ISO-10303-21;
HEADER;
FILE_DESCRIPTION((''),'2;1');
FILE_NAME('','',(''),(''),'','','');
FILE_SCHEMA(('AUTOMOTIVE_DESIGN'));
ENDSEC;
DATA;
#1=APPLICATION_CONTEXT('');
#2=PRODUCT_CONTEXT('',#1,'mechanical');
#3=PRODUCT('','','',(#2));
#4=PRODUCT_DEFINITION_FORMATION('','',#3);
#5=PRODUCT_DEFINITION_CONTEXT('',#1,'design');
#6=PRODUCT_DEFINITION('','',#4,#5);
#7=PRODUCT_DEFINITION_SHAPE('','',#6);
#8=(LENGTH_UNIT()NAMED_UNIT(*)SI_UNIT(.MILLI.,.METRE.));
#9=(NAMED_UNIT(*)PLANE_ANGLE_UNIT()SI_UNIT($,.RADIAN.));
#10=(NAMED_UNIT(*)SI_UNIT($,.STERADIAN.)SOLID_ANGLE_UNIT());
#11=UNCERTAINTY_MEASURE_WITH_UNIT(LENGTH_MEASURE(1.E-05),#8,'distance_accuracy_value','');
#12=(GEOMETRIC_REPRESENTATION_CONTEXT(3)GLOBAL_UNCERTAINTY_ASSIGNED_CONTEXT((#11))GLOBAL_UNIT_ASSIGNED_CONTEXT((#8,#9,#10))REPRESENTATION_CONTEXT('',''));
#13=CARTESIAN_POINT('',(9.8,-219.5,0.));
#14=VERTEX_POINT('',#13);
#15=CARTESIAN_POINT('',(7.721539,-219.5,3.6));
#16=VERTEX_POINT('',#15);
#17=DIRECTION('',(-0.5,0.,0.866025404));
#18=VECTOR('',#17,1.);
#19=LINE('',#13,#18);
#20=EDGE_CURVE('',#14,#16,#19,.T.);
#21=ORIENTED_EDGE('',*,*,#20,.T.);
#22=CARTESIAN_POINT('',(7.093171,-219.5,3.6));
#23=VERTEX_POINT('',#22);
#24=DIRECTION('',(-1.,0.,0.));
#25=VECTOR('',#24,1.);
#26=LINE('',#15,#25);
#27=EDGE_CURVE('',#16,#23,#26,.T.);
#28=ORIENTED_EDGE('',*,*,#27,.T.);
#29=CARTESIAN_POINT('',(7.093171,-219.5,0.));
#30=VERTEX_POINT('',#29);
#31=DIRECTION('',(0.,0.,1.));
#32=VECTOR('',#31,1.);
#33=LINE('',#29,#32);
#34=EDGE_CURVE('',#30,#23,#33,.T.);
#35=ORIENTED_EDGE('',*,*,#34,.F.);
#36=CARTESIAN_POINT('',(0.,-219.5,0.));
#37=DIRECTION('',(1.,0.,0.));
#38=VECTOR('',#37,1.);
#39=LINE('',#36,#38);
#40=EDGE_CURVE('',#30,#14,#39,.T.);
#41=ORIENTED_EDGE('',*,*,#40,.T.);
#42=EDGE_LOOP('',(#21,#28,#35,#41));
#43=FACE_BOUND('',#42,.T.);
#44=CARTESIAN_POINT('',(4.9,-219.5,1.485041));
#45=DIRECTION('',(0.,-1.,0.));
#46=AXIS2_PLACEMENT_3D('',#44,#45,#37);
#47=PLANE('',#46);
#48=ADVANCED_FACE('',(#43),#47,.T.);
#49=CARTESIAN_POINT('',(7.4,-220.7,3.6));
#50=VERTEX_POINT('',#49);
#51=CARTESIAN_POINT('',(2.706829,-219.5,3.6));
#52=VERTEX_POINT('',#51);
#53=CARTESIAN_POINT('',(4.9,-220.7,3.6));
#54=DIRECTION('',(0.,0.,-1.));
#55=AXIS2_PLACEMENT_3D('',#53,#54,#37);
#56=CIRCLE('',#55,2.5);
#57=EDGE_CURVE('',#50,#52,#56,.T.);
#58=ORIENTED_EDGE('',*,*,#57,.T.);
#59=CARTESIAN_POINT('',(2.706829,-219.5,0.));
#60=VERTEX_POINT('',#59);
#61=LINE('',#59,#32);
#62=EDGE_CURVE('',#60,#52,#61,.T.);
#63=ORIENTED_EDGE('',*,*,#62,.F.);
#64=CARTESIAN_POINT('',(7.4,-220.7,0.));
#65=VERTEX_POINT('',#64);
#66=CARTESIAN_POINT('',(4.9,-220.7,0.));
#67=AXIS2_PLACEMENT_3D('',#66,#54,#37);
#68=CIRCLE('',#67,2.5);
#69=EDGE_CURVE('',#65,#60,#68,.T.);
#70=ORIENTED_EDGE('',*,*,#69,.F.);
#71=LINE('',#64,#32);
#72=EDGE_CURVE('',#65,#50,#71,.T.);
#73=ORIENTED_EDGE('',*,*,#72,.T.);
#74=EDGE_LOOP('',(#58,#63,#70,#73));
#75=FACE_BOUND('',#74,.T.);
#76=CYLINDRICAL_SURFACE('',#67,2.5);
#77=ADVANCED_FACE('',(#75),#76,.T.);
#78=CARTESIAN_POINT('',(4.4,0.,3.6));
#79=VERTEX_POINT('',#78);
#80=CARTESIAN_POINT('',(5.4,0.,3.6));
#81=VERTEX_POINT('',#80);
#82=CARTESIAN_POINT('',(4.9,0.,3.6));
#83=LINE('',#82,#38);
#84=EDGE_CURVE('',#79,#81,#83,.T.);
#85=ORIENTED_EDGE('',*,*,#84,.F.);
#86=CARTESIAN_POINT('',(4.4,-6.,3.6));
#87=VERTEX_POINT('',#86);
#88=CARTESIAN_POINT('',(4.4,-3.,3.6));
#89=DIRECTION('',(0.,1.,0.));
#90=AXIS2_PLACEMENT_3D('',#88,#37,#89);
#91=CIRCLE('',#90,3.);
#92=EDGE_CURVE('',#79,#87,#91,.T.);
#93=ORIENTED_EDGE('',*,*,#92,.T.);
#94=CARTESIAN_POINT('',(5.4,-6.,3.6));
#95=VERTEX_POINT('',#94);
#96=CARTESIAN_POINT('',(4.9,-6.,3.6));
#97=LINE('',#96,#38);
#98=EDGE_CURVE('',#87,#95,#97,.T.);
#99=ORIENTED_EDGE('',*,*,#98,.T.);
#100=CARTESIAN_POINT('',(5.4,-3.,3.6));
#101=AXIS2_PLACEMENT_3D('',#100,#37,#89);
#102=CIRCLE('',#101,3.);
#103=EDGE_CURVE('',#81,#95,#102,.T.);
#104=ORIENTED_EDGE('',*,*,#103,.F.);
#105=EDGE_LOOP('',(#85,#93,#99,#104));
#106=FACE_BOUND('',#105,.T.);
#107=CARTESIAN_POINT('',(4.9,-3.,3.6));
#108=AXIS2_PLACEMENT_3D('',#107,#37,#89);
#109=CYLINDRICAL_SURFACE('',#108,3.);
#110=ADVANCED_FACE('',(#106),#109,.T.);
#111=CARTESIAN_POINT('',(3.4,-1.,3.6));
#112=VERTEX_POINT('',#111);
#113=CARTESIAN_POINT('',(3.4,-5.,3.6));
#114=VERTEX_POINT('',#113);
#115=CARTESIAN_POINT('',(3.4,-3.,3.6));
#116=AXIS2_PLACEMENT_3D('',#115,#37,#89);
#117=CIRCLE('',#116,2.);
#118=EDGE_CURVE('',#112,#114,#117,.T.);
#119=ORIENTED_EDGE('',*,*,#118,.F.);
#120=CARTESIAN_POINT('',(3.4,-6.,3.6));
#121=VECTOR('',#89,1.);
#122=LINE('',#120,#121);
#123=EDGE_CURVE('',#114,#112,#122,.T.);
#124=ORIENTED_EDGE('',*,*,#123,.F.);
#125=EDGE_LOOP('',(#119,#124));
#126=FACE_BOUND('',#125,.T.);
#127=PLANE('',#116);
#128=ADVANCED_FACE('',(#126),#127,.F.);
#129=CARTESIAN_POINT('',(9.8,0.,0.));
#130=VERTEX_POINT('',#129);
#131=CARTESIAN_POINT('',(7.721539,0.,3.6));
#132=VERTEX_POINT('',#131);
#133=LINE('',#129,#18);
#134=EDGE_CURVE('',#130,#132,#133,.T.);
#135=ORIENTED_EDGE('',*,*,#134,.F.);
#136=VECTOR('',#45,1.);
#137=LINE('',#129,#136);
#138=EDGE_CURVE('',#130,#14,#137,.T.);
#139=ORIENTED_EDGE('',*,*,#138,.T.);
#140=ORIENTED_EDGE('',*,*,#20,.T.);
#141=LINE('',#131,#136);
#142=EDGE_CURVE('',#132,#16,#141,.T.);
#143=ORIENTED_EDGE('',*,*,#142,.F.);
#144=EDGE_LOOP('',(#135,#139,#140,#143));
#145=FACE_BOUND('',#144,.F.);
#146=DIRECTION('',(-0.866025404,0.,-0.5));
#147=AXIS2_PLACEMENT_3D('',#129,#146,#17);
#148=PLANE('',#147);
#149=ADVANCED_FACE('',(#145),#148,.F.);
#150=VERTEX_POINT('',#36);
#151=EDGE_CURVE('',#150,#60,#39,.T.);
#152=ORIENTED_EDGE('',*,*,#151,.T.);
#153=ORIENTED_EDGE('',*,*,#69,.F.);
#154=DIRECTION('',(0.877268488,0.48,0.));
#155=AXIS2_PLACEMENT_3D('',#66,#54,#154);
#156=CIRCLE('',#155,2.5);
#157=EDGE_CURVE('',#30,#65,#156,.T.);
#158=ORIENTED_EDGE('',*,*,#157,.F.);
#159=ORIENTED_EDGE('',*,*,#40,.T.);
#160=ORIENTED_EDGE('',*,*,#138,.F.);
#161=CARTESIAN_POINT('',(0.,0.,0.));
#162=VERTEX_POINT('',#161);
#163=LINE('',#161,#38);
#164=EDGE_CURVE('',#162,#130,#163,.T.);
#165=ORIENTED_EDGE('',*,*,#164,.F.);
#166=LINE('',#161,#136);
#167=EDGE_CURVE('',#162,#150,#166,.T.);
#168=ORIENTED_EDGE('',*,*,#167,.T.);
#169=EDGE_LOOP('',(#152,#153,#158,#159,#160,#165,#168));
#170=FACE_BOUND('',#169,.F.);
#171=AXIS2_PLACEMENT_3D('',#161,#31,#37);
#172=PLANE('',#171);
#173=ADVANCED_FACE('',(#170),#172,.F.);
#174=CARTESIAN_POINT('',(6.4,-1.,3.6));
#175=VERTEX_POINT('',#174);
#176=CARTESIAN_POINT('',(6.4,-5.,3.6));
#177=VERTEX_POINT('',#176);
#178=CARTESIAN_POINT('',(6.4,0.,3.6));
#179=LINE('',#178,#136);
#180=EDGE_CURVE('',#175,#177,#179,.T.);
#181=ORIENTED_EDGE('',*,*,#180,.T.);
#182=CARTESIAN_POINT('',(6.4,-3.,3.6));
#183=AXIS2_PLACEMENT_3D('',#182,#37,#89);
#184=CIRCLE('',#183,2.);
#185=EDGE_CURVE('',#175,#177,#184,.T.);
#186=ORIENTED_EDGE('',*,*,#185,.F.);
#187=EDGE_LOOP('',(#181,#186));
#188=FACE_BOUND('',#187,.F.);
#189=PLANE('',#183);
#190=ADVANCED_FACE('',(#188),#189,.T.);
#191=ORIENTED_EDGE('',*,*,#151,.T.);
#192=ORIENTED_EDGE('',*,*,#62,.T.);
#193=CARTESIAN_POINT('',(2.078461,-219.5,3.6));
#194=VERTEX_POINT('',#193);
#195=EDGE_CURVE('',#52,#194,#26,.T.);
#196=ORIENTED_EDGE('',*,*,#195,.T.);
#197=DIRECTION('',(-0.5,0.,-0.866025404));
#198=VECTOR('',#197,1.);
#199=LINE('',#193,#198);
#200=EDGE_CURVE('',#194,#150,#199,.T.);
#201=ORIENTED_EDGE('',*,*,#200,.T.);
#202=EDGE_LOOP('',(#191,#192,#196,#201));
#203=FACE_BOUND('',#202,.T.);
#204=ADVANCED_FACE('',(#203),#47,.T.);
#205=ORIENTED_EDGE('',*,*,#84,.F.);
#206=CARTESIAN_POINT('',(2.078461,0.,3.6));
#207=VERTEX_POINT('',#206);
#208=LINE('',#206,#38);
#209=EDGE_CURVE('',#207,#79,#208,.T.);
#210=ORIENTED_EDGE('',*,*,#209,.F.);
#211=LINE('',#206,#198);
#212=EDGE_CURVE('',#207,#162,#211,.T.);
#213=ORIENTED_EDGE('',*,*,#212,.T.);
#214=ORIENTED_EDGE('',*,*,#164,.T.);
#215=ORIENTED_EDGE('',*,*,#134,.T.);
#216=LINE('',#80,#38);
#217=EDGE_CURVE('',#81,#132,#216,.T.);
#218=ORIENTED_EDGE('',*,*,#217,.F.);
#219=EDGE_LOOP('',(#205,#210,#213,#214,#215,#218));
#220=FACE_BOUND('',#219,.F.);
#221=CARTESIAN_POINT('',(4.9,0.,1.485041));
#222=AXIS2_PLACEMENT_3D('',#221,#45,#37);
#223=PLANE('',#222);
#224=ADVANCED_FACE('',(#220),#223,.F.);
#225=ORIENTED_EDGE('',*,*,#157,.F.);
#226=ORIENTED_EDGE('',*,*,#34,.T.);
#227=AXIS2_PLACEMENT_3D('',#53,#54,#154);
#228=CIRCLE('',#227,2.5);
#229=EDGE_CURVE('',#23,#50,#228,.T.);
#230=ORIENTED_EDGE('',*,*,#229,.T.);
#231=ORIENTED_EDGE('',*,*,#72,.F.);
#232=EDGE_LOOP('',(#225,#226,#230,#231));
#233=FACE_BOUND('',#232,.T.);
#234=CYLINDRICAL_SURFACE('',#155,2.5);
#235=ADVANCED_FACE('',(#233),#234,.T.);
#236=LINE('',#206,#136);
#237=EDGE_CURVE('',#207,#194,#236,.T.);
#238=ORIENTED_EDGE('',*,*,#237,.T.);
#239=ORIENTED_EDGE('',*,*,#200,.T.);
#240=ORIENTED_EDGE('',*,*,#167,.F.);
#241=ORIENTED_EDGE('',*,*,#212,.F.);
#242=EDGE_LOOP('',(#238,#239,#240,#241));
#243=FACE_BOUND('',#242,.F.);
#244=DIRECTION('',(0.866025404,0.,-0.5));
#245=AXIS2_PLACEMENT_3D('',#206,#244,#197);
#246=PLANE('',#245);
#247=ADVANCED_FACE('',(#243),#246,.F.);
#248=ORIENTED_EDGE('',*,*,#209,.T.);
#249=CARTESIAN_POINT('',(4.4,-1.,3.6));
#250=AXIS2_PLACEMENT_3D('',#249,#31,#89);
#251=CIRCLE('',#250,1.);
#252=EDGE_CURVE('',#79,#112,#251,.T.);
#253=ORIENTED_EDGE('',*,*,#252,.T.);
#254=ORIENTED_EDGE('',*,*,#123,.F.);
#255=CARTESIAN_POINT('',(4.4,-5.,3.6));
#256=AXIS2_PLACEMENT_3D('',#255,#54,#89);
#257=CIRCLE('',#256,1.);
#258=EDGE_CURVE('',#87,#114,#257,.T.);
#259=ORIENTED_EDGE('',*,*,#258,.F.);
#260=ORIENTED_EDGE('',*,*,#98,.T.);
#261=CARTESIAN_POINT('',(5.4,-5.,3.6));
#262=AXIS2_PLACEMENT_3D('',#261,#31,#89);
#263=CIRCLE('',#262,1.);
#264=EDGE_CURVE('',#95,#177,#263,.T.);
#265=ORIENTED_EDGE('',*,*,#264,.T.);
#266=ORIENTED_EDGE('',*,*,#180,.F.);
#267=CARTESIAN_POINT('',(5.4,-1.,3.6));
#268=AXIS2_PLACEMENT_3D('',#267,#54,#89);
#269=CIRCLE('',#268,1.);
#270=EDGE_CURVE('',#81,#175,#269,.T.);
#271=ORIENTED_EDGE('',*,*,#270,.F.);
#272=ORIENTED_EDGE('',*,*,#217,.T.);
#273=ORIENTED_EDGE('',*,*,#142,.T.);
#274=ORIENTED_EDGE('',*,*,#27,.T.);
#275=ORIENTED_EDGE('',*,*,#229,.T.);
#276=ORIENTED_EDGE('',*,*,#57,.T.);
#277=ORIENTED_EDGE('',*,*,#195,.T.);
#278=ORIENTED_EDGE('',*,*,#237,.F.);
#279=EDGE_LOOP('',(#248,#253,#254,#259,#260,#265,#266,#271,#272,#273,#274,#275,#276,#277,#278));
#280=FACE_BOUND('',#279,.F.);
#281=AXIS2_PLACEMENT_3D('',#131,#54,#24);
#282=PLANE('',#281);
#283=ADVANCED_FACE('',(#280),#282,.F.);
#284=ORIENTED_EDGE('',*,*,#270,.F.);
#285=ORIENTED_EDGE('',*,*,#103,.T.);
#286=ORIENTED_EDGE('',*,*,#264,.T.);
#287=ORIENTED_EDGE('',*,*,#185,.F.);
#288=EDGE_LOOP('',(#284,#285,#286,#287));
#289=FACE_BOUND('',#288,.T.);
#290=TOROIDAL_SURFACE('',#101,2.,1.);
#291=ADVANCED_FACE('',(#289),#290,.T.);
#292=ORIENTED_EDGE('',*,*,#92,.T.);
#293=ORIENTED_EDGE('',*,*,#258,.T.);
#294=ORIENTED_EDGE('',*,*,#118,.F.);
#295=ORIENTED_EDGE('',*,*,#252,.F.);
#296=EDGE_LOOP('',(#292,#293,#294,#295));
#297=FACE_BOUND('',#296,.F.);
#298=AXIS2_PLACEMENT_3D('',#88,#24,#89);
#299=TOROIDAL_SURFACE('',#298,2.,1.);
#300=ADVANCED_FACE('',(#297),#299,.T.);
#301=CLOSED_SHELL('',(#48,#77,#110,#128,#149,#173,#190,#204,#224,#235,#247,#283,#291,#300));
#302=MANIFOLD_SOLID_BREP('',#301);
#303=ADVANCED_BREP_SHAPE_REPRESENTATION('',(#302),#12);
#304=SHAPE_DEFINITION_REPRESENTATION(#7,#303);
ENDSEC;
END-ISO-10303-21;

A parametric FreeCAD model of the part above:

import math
import FreeCAD as App
import Part
import Sketcher
from FreeCAD import Vector
Q = App.Units.Quantity


def edges_at(feature, points):
    """Names of the edges that pass closest to the given points."""
    edges = feature.Shape.Edges
    near = lambda p: min(range(len(edges)), key=lambda i: edges[i].distToShape(Part.Vertex(*p))[0])
    return sorted({f"Edge{near(p) + 1}" for p in points})


def add_polygon(sketch, points):
    """Adds a closed chain of lines whose ends are joined by coincident constraints."""
    first, n = sketch.GeometryCount, len(points)
    for a, b in zip(points, points[1:] + points[:1]):
        sketch.addGeometry(Part.LineSegment(App.Vector(*a, 0), App.Vector(*b, 0)), False)
    for i in range(n):
        sketch.addConstraint(Sketcher.Constraint("Coincident", first + i, 2, first + (i + 1) % n, 1))

doc = App.newDocument("Part")
params = doc.addObject("Spreadsheet::Sheet", "Params")
for row, (alias, value) in enumerate([
    ("sketch1_width", "9.8 mm"),
    ("pad1_length", "219.5 mm"),
    ("sketch2_radius", "2.5 mm"),
    ("pad2_length", "3.6 mm"),
    ("sketch3_width", "3 mm"),
    ("revolution_angle", "180 deg"),
    ("fillet_radius", "1 mm"),
], start=1):
    params.set(f"A{row}", alias)
    params.set(f"B{row}", "=" + value)
    params.setAlias(f"B{row}", alias)

body = doc.addObject("PartDesign::Body", "Body")

# Sketch on XZ plane
sketch1 = doc.addObject("Sketcher::SketchObject", "Sketch")
body.addObject(sketch1)
sketch1.AttachmentSupport = (doc.XZ_Plane, [""])
sketch1.MapMode = "FlatFace"
add_polygon(sketch1, [(2.1, 3.6), (0, 0), (9.8, 0), (7.7, 3.6)])  # lines 0-3
sketch1.addConstraint([
    Sketcher.Constraint("Horizontal", 1),
    Sketcher.Constraint("Horizontal", 3),
    Sketcher.Constraint("Coincident", 0, 2, -1, 1),
    Sketcher.Constraint("Equal", 0, 2),
    Sketcher.Constraint("Angle", 0, Q("-120 deg")),
    Sketcher.Constraint("DistanceX", 1, 1, 1, 2, Q("9.8 mm")),
    Sketcher.Constraint("DistanceY", -1, 1, 2, 2, Q("3.6 mm")),
])
sketch1.setExpression("Constraints[9]", "Params.sketch1_width")
pad1 = doc.addObject("PartDesign::Pad", "Pad")
body.addObject(pad1)
pad1.Profile = sketch1
pad1.setExpression("Length", "Params.pad1_length")

# Sketch on XY plane
sketch2 = doc.addObject("Sketcher::SketchObject", "Sketch001")
body.addObject(sketch2)
sketch2.AttachmentSupport = (doc.XY_Plane, [""])
sketch2.MapMode = "FlatFace"
sketch2.addGeometry([
    Part.ArcOfCircle(Part.Circle(Vector(4.9, -220.7, 0), Vector(0, 0, 1), 2.5), math.radians(0), math.radians(29)),
    Part.ArcOfCircle(Part.Circle(Vector(4.9, -220.7, 0), Vector(0, 0, 1), 2.5), math.radians(151), math.radians(360)),
    Part.LineSegment(Vector(2.7, -219.5, 0), Vector(7.1, -219.5, 0)),
], False)
sketch2.addConstraint([
    Sketcher.Constraint("Tangent", 0, 1, 1, 2),
    Sketcher.Constraint("Coincident", 1, 1, 2, 1),
    Sketcher.Constraint("Coincident", 2, 2, 0, 2),
    Sketcher.Constraint("Horizontal", 2),
    Sketcher.Constraint("Equal", 0, 1),
    Sketcher.Constraint("Horizontal", 1, 3, 0, 1),
    Sketcher.Constraint("Radius", 0, Q("2.5 mm")),
    Sketcher.Constraint("DistanceX", -1, 1, 0, 3, Q("4.9 mm")),
    Sketcher.Constraint("DistanceY", 0, 3, -1, 1, Q("220.7 mm")),
    Sketcher.Constraint("DistanceY", 1, 1, -1, 1, Q("219.5 mm")),
])
sketch2.setExpression("Constraints[6]", "Params.sketch2_radius")
pad2 = doc.addObject("PartDesign::Pad", "Pad001")
body.addObject(pad2)
pad2.Profile = sketch2
pad2.setExpression("Length", "Params.pad2_length")

# Sketch on XY plane
sketch3 = doc.addObject("Sketcher::SketchObject", "Sketch002")
body.addObject(sketch3)
sketch3.AttachmentSupport = (doc.XY_Plane, [""])
sketch3.MapMode = "FlatFace"
sketch3.AttachmentOffset = App.Placement(Vector(0, 0, 3.6), App.Rotation())
add_polygon(sketch3, [(3.4, 0), (3.4, -3), (6.4, -3), (6.4, 0)])  # lines 0-3
sketch3.addGeometry(Part.LineSegment(Vector(3.4, -3, 0), Vector(6.4, -3, 0)), True)  # axis
sketch3.addConstraint([
    Sketcher.Constraint("Vertical", 0),
    Sketcher.Constraint("Horizontal", 1),
    Sketcher.Constraint("Vertical", 2),
    Sketcher.Constraint("Horizontal", 3),
    Sketcher.Constraint("Horizontal", 4),
    Sketcher.Constraint("Coincident", 4, 1, 0, 2),
    Sketcher.Constraint("PointOnObject", 2, 2, -1),
    Sketcher.Constraint("Vertical", 2, 2, 4, 2),
    Sketcher.Constraint("Equal", 4, 0),
    Sketcher.Constraint("DistanceX", 1, 1, 1, 2, Q("3 mm")),
    Sketcher.Constraint("DistanceX", -1, 1, 0, 2, Q("3.4 mm")),
])
sketch3.setExpression("Constraints[13]", "Params.sketch3_width")
revolution = doc.addObject("PartDesign::Revolution", "Revolution")
body.addObject(revolution)
revolution.Profile = sketch3
revolution.ReferenceAxis = (sketch3, ["Axis0"])
revolution.setExpression("Angle", "Params.revolution_angle")
doc.recompute()

fillet = doc.addObject("PartDesign::Fillet", "Fillet")
body.addObject(fillet)
fillet.Base = (revolution, edges_at(revolution, [(6.4, -3, 6.6), (3.4, -3, 6.6)]))
fillet.setExpression("Radius", "Params.fillet_radius")

doc.recompute()
